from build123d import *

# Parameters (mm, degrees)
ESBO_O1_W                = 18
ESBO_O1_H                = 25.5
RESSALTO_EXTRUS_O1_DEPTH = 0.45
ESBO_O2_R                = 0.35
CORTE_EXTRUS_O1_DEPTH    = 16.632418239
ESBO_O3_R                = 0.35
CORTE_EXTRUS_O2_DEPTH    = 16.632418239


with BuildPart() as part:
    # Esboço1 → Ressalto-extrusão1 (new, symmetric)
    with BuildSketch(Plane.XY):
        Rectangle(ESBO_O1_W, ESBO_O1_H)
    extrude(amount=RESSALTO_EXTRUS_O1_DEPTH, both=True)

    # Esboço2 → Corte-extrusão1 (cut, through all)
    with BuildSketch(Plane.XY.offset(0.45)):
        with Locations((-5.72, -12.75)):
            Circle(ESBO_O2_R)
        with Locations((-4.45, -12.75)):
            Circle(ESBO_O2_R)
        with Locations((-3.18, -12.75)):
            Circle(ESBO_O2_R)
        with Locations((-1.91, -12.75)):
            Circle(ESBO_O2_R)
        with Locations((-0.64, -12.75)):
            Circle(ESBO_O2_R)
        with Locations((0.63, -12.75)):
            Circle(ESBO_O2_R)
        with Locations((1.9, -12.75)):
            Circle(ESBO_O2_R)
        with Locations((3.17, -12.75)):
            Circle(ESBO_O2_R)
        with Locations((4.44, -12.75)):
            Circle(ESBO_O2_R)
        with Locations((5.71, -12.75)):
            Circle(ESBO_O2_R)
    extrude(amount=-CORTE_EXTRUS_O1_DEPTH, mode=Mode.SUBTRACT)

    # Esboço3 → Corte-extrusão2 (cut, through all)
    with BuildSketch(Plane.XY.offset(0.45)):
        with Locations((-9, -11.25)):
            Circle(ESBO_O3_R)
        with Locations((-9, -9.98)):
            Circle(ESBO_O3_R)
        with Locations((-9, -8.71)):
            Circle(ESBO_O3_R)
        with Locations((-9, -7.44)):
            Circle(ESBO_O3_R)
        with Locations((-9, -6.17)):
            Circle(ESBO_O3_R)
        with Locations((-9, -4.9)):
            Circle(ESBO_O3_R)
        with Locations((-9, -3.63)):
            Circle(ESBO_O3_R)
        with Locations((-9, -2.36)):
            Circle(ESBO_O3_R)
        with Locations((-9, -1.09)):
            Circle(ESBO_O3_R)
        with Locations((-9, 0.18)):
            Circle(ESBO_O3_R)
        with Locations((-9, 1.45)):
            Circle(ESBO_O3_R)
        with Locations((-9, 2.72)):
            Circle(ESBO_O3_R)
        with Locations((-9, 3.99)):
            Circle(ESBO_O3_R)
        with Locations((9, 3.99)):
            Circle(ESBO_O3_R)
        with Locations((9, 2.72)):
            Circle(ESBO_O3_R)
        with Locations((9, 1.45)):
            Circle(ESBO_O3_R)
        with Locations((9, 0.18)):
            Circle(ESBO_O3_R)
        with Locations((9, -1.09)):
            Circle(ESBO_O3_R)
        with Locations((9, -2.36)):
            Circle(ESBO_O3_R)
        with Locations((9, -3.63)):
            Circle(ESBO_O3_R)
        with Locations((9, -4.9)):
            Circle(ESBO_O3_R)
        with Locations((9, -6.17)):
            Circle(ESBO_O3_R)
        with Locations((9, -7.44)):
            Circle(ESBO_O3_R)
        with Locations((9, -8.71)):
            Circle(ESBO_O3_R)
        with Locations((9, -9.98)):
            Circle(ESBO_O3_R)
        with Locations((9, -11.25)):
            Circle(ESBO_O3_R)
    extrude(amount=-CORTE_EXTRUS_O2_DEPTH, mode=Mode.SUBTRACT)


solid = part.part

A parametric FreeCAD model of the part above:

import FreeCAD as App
import Part
import Sketcher
from FreeCAD import Vector
Q = App.Units.Quantity

doc = App.newDocument("Part")
body = doc.addObject("PartDesign::Body", "Body")

# Sketch on XY plane
sketch1 = doc.addObject("Sketcher::SketchObject", "Sketch")
body.addObject(sketch1)
sketch1.AttachmentSupport = (doc.XY_Plane, [""])
sketch1.MapMode = "FlatFace"
sketch1.addGeometry(Part.LineSegment(Vector(-9, 12.75, 0), Vector(-9, -12.75, 0)), False)
sketch1.addGeometry(Part.LineSegment(Vector(-9, -12.75, 0), Vector(9, -12.75, 0)), False)
sketch1.addGeometry(Part.LineSegment(Vector(9, -12.75, 0), Vector(9, 12.75, 0)), False)
sketch1.addGeometry(Part.LineSegment(Vector(9, 12.75, 0), Vector(-9, 12.75, 0)), False)
sketch1.addConstraint(Sketcher.Constraint("Coincident", 0, 2, 1, 1))
sketch1.addConstraint(Sketcher.Constraint("Coincident", 1, 2, 2, 1))
sketch1.addConstraint(Sketcher.Constraint("Coincident", 2, 2, 3, 1))
sketch1.addConstraint(Sketcher.Constraint("Coincident", 3, 2, 0, 1))
sketch1.addConstraint(Sketcher.Constraint("Vertical", 0))
sketch1.addConstraint(Sketcher.Constraint("Horizontal", 1))
sketch1.addConstraint(Sketcher.Constraint("Vertical", 2))
sketch1.addConstraint(Sketcher.Constraint("Horizontal", 3))
sketch1.addConstraint(Sketcher.Constraint("Symmetric", 0, 2, 2, 2, -1, 1))
sketch1.addConstraint(Sketcher.Constraint("DistanceX", 1, 1, 1, 2, Q("18 mm")))
sketch1.addConstraint(Sketcher.Constraint("DistanceY", 0, 2, 0, 1, Q("25.5 mm")))
pad1 = doc.addObject("PartDesign::Pad", "Pad")
body.addObject(pad1)
pad1.Profile = sketch1
pad1.Length = 0.9
pad1.Midplane = True

# Sketch on XY plane
sketch2 = doc.addObject("Sketcher::SketchObject", "Sketch001")
body.addObject(sketch2)
sketch2.AttachmentSupport = (doc.XY_Plane, [""])
sketch2.MapMode = "FlatFace"
sketch2.AttachmentOffset = App.Placement(Vector(0, 0, 0.45), App.Rotation())
sketch2.addGeometry(Part.Circle(Vector(-5.72, -12.75, 0), Vector(0, 0, 1), 0.35), False)
sketch2.addGeometry(Part.Circle(Vector(-4.45, -12.75, 0), Vector(0, 0, 1), 0.35), False)
sketch2.addGeometry(Part.Circle(Vector(-3.18, -12.75, 0), Vector(0, 0, 1), 0.35), False)
sketch2.addGeometry(Part.Circle(Vector(-1.91, -12.75, 0), Vector(0, 0, 1), 0.35), False)
sketch2.addGeometry(Part.Circle(Vector(-0.64, -12.75, 0), Vector(0, 0, 1), 0.35), False)
sketch2.addGeometry(Part.Circle(Vector(0.63, -12.75, 0), Vector(0, 0, 1), 0.35), False)
sketch2.addGeometry(Part.Circle(Vector(1.9, -12.75, 0), Vector(0, 0, 1), 0.35), False)
sketch2.addGeometry(Part.Circle(Vector(3.17, -12.75, 0), Vector(0, 0, 1), 0.35), False)
sketch2.addGeometry(Part.Circle(Vector(4.44, -12.75, 0), Vector(0, 0, 1), 0.35), False)
sketch2.addGeometry(Part.Circle(Vector(5.71, -12.75, 0), Vector(0, 0, 1), 0.35), False)
sketch2.addConstraint(Sketcher.Constraint("Equal", 0, 1))
sketch2.addConstraint(Sketcher.Constraint("Equal", 1, 2))
sketch2.addConstraint(Sketcher.Constraint("Equal", 2, 3))
sketch2.addConstraint(Sketcher.Constraint("Equal", 3, 4))
sketch2.addConstraint(Sketcher.Constraint("Equal", 4, 5))
sketch2.addConstraint(Sketcher.Constraint("Equal", 5, 6))
sketch2.addConstraint(Sketcher.Constraint("Equal", 6, 7))
sketch2.addConstraint(Sketcher.Constraint("Equal", 7, 8))
sketch2.addConstraint(Sketcher.Constraint("Equal", 8, 9))
sketch2.addConstraint(Sketcher.Constraint("Horizontal", 0, 3, 1, 3))
sketch2.addConstraint(Sketcher.Constraint("Horizontal", 1, 3, 2, 3))
sketch2.addConstraint(Sketcher.Constraint("Horizontal", 2, 3, 3, 3))
sketch2.addConstraint(Sketcher.Constraint("Horizontal", 3, 3, 4, 3))
sketch2.addConstraint(Sketcher.Constraint("Horizontal", 4, 3, 5, 3))
sketch2.addConstraint(Sketcher.Constraint("Horizontal", 5, 3, 6, 3))
sketch2.addConstraint(Sketcher.Constraint("Horizontal", 6, 3, 7, 3))
sketch2.addConstraint(Sketcher.Constraint("Horizontal", 7, 3, 8, 3))
sketch2.addConstraint(Sketcher.Constraint("Horizontal", 8, 3, 9, 3))
sketch2.addConstraint(Sketcher.Constraint("Diameter", 0, Q("0.7 mm")))
sketch2.addConstraint(Sketcher.Constraint("DistanceX", -1, 1, 6, 3, Q("1.9 mm")))
sketch2.addConstraint(Sketcher.Constraint("DistanceX", 0, 3, -1, 1, Q("5.72 mm")))
sketch2.addConstraint(Sketcher.Constraint("DistanceY", 0, 3, -1, 1, Q("12.75 mm")))
sketch2.addConstraint(Sketcher.Constraint("DistanceX", 1, 3, -1, 1, Q("4.45 mm")))
sketch2.addConstraint(Sketcher.Constraint("DistanceX", 2, 3, -1, 1, Q("3.18 mm")))
sketch2.addConstraint(Sketcher.Constraint("DistanceX", 3, 3, -1, 1, Q("1.91 mm")))
sketch2.addConstraint(Sketcher.Constraint("DistanceX", 4, 3, -1, 1, Q("0.64 mm")))
sketch2.addConstraint(Sketcher.Constraint("DistanceX", -1, 1, 5, 3, Q("0.63 mm")))
sketch2.addConstraint(Sketcher.Constraint("DistanceX", -1, 1, 7, 3, Q("3.17 mm")))
sketch2.addConstraint(Sketcher.Constraint("DistanceX", -1, 1, 8, 3, Q("4.44 mm")))
sketch2.addConstraint(Sketcher.Constraint("DistanceX", -1, 1, 9, 3, Q("5.71 mm")))
pocket1 = doc.addObject("PartDesign::Pocket", "Pocket")
body.addObject(pocket1)
pocket1.Profile = sketch2
pocket1.Type = "ThroughAll"

# Sketch on XY plane
sketch3 = doc.addObject("Sketcher::SketchObject", "Sketch002")
body.addObject(sketch3)
sketch3.AttachmentSupport = (doc.XY_Plane, [""])
sketch3.MapMode = "FlatFace"
sketch3.AttachmentOffset = App.Placement(Vector(0, 0, 0.45), App.Rotation())
sketch3.addGeometry(Part.Circle(Vector(-9, -11.25, 0), Vector(0, 0, 1), 0.35), False)
sketch3.addGeometry(Part.Circle(Vector(-9, -9.98, 0), Vector(0, 0, 1), 0.35), False)
sketch3.addGeometry(Part.Circle(Vector(-9, -8.71, 0), Vector(0, 0, 1), 0.35), False)
sketch3.addGeometry(Part.Circle(Vector(-9, -7.44, 0), Vector(0, 0, 1), 0.35), False)
sketch3.addGeometry(Part.Circle(Vector(-9, -6.17, 0), Vector(0, 0, 1), 0.35), False)
sketch3.addGeometry(Part.Circle(Vector(-9, -4.9, 0), Vector(0, 0, 1), 0.35), False)
sketch3.addGeometry(Part.Circle(Vector(-9, -3.63, 0), Vector(0, 0, 1), 0.35), False)
sketch3.addGeometry(Part.Circle(Vector(-9, -2.36, 0), Vector(0, 0, 1), 0.35), False)
sketch3.addGeometry(Part.Circle(Vector(-9, -1.09, 0), Vector(0, 0, 1), 0.35), False)
sketch3.addGeometry(Part.Circle(Vector(-9, 0.18, 0), Vector(0, 0, 1), 0.35), False)
sketch3.addGeometry(Part.Circle(Vector(-9, 1.45, 0), Vector(0, 0, 1), 0.35), False)
sketch3.addGeometry(Part.Circle(Vector(-9, 2.72, 0), Vector(0, 0, 1), 0.35), False)
sketch3.addGeometry(Part.Circle(Vector(-9, 3.99, 0), Vector(0, 0, 1), 0.35), False)
sketch3.addGeometry(Part.Circle(Vector(9, 3.99, 0), Vector(0, 0, 1), 0.35), False)
sketch3.addGeometry(Part.Circle(Vector(9, 2.72, 0), Vector(0, 0, 1), 0.35), False)
sketch3.addGeometry(Part.Circle(Vector(9, 1.45, 0), Vector(0, 0, 1), 0.35), False)
sketch3.addGeometry(Part.Circle(Vector(9, 0.18, 0), Vector(0, 0, 1), 0.35), False)
sketch3.addGeometry(Part.Circle(Vector(9, -1.09, 0), Vector(0, 0, 1), 0.35), False)
sketch3.addGeometry(Part.Circle(Vector(9, -2.36, 0), Vector(0, 0, 1), 0.35), False)
sketch3.addGeometry(Part.Circle(Vector(9, -3.63, 0), Vector(0, 0, 1), 0.35), False)
sketch3.addGeometry(Part.Circle(Vector(9, -4.9, 0), Vector(0, 0, 1), 0.35), False)
sketch3.addGeometry(Part.Circle(Vector(9, -6.17, 0), Vector(0, 0, 1), 0.35), False)
sketch3.addGeometry(Part.Circle(Vector(9, -7.44, 0), Vector(0, 0, 1), 0.35), False)
sketch3.addGeometry(Part.Circle(Vector(9, -8.71, 0), Vector(0, 0, 1), 0.35), False)
sketch3.addGeometry(Part.Circle(Vector(9, -9.98, 0), Vector(0, 0, 1), 0.35), False)
sketch3.addGeometry(Part.Circle(Vector(9, -11.25, 0), Vector(0, 0, 1), 0.35), False)
sketch3.addConstraint(Sketcher.Constraint("Equal", 0, 1))
sketch3.addConstraint(Sketcher.Constraint("Equal", 1, 2))
sketch3.addConstraint(Sketcher.Constraint("Equal", 2, 3))
sketch3.addConstraint(Sketcher.Constraint("Equal", 3, 4))
sketch3.addConstraint(Sketcher.Constraint("Equal", 4, 5))
sketch3.addConstraint(Sketcher.Constraint("Equal", 5, 6))
sketch3.addConstraint(Sketcher.Constraint("Equal", 6, 7))
sketch3.addConstraint(Sketcher.Constraint("Equal", 7, 8))
sketch3.addConstraint(Sketcher.Constraint("Equal", 8, 9))
sketch3.addConstraint(Sketcher.Constraint("Equal", 9, 10))
sketch3.addConstraint(Sketcher.Constraint("Equal", 10, 11))
sketch3.addConstraint(Sketcher.Constraint("Equal", 11, 12))
sketch3.addConstraint(Sketcher.Constraint("Equal", 12, 13))
sketch3.addConstraint(Sketcher.Constraint("Equal", 13, 14))
sketch3.addConstraint(Sketcher.Constraint("Equal", 14, 15))
sketch3.addConstraint(Sketcher.Constraint("Equal", 15, 16))
sketch3.addConstraint(Sketcher.Constraint("Equal", 16, 17))
sketch3.addConstraint(Sketcher.Constraint("Equal", 17, 18))
sketch3.addConstraint(Sketcher.Constraint("Equal", 18, 19))
sketch3.addConstraint(Sketcher.Constraint("Equal", 19, 20))
sketch3.addConstraint(Sketcher.Constraint("Equal", 20, 21))
sketch3.addConstraint(Sketcher.Constraint("Equal", 21, 22))
sketch3.addConstraint(Sketcher.Constraint("Equal", 22, 23))
sketch3.addConstraint(Sketcher.Constraint("Equal", 23, 24))
sketch3.addConstraint(Sketcher.Constraint("Equal", 24, 25))
sketch3.addConstraint(Sketcher.Constraint("Symmetric", 12, 3, 13, 3, -2))
sketch3.addConstraint(Sketcher.Constraint("Symmetric", 11, 3, 14, 3, -2))
sketch3.addConstraint(Sketcher.Constraint("Symmetric", 10, 3, 15, 3, -2))
sketch3.addConstraint(Sketcher.Constraint("Symmetric", 9, 3, 16, 3, -2))
sketch3.addConstraint(Sketcher.Constraint("Symmetric", 8, 3, 17, 3, -2))
sketch3.addConstraint(Sketcher.Constraint("Symmetric", 7, 3, 18, 3, -2))
sketch3.addConstraint(Sketcher.Constraint("Symmetric", 6, 3, 19, 3, -2))
sketch3.addConstraint(Sketcher.Constraint("Symmetric", 5, 3, 20, 3, -2))
sketch3.addConstraint(Sketcher.Constraint("Symmetric", 4, 3, 21, 3, -2))
sketch3.addConstraint(Sketcher.Constraint("Symmetric", 3, 3, 22, 3, -2))
sketch3.addConstraint(Sketcher.Constraint("Symmetric", 2, 3, 23, 3, -2))
sketch3.addConstraint(Sketcher.Constraint("Symmetric", 1, 3, 24, 3, -2))
sketch3.addConstraint(Sketcher.Constraint("Symmetric", 0, 3, 25, 3, -2))
sketch3.addConstraint(Sketcher.Constraint("Vertical", 0, 3, 1, 3))
sketch3.addConstraint(Sketcher.Constraint("Vertical", 1, 3, 2, 3))
sketch3.addConstraint(Sketcher.Constraint("Vertical", 2, 3, 3, 3))
sketch3.addConstraint(Sketcher.Constraint("Vertical", 3, 3, 4, 3))
sketch3.addConstraint(Sketcher.Constraint("Vertical", 4, 3, 5, 3))
sketch3.addConstraint(Sketcher.Constraint("Vertical", 5, 3, 6, 3))
sketch3.addConstraint(Sketcher.Constraint("Vertical", 6, 3, 7, 3))
sketch3.addConstraint(Sketcher.Constraint("Vertical", 7, 3, 8, 3))
sketch3.addConstraint(Sketcher.Constraint("Vertical", 8, 3, 9, 3))
sketch3.addConstraint(Sketcher.Constraint("Vertical", 9, 3, 10, 3))
sketch3.addConstraint(Sketcher.Constraint("Vertical", 10, 3, 11, 3))
sketch3.addConstraint(Sketcher.Constraint("Vertical", 11, 3, 12, 3))
sketch3.addConstraint(Sketcher.Constraint("Diameter", 0, Q("0.7 mm")))
sketch3.addConstraint(Sketcher.Constraint("DistanceX", 0, 3, -1, 1, Q("9 mm")))
sketch3.addConstraint(Sketcher.Constraint("DistanceY", 5, 3, -1, 1, Q("4.9 mm")))
sketch3.addConstraint(Sketcher.Constraint("DistanceY", 0, 3, -1, 1, Q("11.25 mm")))
sketch3.addConstraint(Sketcher.Constraint("DistanceY", 1, 3, -1, 1, Q("9.98 mm")))
sketch3.addConstraint(Sketcher.Constraint("DistanceY", 2, 3, -1, 1, Q("8.71 mm")))
sketch3.addConstraint(Sketcher.Constraint("DistanceY", 3, 3, -1, 1, Q("7.44 mm")))
sketch3.addConstraint(Sketcher.Constraint("DistanceY", 4, 3, -1, 1, Q("6.17 mm")))
sketch3.addConstraint(Sketcher.Constraint("DistanceY", 6, 3, -1, 1, Q("3.63 mm")))
sketch3.addConstraint(Sketcher.Constraint("DistanceY", 7, 3, -1, 1, Q("2.36 mm")))
sketch3.addConstraint(Sketcher.Constraint("DistanceY", 8, 3, -1, 1, Q("1.09 mm")))
sketch3.addConstraint(Sketcher.Constraint("DistanceY", -1, 1, 9, 3, Q("0.18 mm")))
sketch3.addConstraint(Sketcher.Constraint("DistanceY", -1, 1, 10, 3, Q("1.45 mm")))
sketch3.addConstraint(Sketcher.Constraint("DistanceY", -1, 1, 11, 3, Q("2.72 mm")))
sketch3.addConstraint(Sketcher.Constraint("DistanceY", -1, 1, 12, 3, Q("3.99 mm")))
pocket2 = doc.addObject("PartDesign::Pocket", "Pocket001")
body.addObject(pocket2)
pocket2.Profile = sketch3
pocket2.Type = "ThroughAll"

doc.recompute()
